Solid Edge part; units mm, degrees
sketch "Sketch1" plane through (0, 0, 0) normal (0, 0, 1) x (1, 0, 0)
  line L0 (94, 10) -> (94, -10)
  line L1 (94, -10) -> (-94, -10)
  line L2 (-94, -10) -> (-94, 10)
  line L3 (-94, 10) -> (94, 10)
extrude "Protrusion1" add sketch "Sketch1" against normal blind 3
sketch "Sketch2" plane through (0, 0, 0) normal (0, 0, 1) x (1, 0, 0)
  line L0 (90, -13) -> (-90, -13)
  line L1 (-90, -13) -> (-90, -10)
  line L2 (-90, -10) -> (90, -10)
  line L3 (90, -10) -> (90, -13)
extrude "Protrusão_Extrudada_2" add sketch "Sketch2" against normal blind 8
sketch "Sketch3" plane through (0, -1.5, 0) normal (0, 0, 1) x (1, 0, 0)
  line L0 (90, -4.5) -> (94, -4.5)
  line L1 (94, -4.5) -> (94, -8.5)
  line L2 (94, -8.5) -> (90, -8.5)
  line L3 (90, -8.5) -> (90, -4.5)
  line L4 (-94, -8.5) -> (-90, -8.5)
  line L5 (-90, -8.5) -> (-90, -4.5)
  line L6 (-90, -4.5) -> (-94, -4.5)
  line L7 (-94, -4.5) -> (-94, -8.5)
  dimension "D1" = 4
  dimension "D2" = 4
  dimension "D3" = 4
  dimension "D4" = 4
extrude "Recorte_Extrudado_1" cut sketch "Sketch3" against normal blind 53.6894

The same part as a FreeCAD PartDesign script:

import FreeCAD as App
import Part
import Sketcher
from FreeCAD import Vector
Q = App.Units.Quantity


def add_polygon(sketch, points):
    """Adds a closed chain of lines whose ends are joined by coincident constraints."""
    first, n = sketch.GeometryCount, len(points)
    for a, b in zip(points, points[1:] + points[:1]):
        sketch.addGeometry(Part.LineSegment(App.Vector(*a, 0), App.Vector(*b, 0)), False)
    for i in range(n):
        sketch.addConstraint(Sketcher.Constraint("Coincident", first + i, 2, first + (i + 1) % n, 1))

doc = App.newDocument("Part")
body = doc.addObject("PartDesign::Body", "Body")

# Sketch on XY plane
sketch1 = body.newObject("Sketcher::SketchObject", "Sketch")
sketch1.AttachmentSupport = (doc.getObject("XY_Plane"), [""])
sketch1.MapMode = "FlatFace"
add_polygon(sketch1, [(94, -10), (94, 10), (-94, 10), (-94, -10)])  # lines 0-3
sketch1.addConstraint([
    Sketcher.Constraint("Vertical", 0),
    Sketcher.Constraint("Horizontal", 1),
    Sketcher.Constraint("Vertical", 2),
    Sketcher.Constraint("Horizontal", 3),
    Sketcher.Constraint("Symmetric", 0, 2, 2, 2, -1, 1),
    Sketcher.Constraint("DistanceX", 1, 2, 1, 1, Q("188 mm")),
    Sketcher.Constraint("DistanceY", 0, 1, 0, 2, Q("20 mm")),
])
pad1 = body.newObject("PartDesign::Pad", "Pad")
pad1.Profile = sketch1
pad1.Length = 3
pad1.Reversed = True

# Sketch on XY plane
sketch2 = body.newObject("Sketcher::SketchObject", "Sketch001")
sketch2.AttachmentSupport = (doc.getObject("XY_Plane"), [""])
sketch2.MapMode = "FlatFace"
add_polygon(sketch2, [(-90, -13), (90, -13), (90, -10), (-90, -10)])  # lines 0-3
sketch2.addConstraint([
    Sketcher.Constraint("Horizontal", 0),
    Sketcher.Constraint("Vertical", 1),
    Sketcher.Constraint("Horizontal", 2),
    Sketcher.Constraint("Vertical", 3),
    Sketcher.Constraint("DistanceX", 0, 1, 0, 2, Q("180 mm")),
    Sketcher.Constraint("DistanceY", 1, 1, 1, 2, Q("3 mm")),
    Sketcher.Constraint("DistanceX", -1, 1, 0, 2, Q("90 mm")),
    Sketcher.Constraint("DistanceY", 0, 2, -1, 1, Q("13 mm")),
])
pad2 = body.newObject("PartDesign::Pad", "Pad001")
pad2.Profile = sketch2
pad2.Length = 8
pad2.Reversed = True

# Sketch on XY plane
sketch3 = body.newObject("Sketcher::SketchObject", "Sketch002")
sketch3.AttachmentSupport = (doc.getObject("XY_Plane"), [""])
sketch3.MapMode = "FlatFace"
add_polygon(sketch3, [(94, -6), (90, -6), (90, -10), (94, -10)])  # lines 0-3
add_polygon(sketch3, [(-94, -6), (-94, -10), (-90, -10), (-90, -6)])  # lines 4-7
sketch3.addConstraint([
    Sketcher.Constraint("Horizontal", 0),
    Sketcher.Constraint("Vertical", 1),
    Sketcher.Constraint("Horizontal", 2),
    Sketcher.Constraint("Vertical", 3),
    Sketcher.Constraint("Vertical", 4),
    Sketcher.Constraint("Horizontal", 5),
    Sketcher.Constraint("Vertical", 6),
    Sketcher.Constraint("Horizontal", 7),
    Sketcher.Constraint("Symmetric", 2, 2, 4, 2, -2),
    Sketcher.Constraint("Symmetric", 0, 2, 6, 2, -2),
    Sketcher.Constraint("Equal", 7, 1),
    Sketcher.Constraint("DistanceX", 0, 2, 0, 1, Q("4 mm")),
    Sketcher.Constraint("DistanceX", -1, 1, 0, 2, Q("90 mm")),
    Sketcher.Constraint("DistanceY", 0, 2, -1, 1, Q("6 mm")),
])
pocket1 = body.newObject("PartDesign::Pocket", "Pocket")
pocket1.Profile = sketch3
pocket1.Length = 53.6894

doc.recompute()
